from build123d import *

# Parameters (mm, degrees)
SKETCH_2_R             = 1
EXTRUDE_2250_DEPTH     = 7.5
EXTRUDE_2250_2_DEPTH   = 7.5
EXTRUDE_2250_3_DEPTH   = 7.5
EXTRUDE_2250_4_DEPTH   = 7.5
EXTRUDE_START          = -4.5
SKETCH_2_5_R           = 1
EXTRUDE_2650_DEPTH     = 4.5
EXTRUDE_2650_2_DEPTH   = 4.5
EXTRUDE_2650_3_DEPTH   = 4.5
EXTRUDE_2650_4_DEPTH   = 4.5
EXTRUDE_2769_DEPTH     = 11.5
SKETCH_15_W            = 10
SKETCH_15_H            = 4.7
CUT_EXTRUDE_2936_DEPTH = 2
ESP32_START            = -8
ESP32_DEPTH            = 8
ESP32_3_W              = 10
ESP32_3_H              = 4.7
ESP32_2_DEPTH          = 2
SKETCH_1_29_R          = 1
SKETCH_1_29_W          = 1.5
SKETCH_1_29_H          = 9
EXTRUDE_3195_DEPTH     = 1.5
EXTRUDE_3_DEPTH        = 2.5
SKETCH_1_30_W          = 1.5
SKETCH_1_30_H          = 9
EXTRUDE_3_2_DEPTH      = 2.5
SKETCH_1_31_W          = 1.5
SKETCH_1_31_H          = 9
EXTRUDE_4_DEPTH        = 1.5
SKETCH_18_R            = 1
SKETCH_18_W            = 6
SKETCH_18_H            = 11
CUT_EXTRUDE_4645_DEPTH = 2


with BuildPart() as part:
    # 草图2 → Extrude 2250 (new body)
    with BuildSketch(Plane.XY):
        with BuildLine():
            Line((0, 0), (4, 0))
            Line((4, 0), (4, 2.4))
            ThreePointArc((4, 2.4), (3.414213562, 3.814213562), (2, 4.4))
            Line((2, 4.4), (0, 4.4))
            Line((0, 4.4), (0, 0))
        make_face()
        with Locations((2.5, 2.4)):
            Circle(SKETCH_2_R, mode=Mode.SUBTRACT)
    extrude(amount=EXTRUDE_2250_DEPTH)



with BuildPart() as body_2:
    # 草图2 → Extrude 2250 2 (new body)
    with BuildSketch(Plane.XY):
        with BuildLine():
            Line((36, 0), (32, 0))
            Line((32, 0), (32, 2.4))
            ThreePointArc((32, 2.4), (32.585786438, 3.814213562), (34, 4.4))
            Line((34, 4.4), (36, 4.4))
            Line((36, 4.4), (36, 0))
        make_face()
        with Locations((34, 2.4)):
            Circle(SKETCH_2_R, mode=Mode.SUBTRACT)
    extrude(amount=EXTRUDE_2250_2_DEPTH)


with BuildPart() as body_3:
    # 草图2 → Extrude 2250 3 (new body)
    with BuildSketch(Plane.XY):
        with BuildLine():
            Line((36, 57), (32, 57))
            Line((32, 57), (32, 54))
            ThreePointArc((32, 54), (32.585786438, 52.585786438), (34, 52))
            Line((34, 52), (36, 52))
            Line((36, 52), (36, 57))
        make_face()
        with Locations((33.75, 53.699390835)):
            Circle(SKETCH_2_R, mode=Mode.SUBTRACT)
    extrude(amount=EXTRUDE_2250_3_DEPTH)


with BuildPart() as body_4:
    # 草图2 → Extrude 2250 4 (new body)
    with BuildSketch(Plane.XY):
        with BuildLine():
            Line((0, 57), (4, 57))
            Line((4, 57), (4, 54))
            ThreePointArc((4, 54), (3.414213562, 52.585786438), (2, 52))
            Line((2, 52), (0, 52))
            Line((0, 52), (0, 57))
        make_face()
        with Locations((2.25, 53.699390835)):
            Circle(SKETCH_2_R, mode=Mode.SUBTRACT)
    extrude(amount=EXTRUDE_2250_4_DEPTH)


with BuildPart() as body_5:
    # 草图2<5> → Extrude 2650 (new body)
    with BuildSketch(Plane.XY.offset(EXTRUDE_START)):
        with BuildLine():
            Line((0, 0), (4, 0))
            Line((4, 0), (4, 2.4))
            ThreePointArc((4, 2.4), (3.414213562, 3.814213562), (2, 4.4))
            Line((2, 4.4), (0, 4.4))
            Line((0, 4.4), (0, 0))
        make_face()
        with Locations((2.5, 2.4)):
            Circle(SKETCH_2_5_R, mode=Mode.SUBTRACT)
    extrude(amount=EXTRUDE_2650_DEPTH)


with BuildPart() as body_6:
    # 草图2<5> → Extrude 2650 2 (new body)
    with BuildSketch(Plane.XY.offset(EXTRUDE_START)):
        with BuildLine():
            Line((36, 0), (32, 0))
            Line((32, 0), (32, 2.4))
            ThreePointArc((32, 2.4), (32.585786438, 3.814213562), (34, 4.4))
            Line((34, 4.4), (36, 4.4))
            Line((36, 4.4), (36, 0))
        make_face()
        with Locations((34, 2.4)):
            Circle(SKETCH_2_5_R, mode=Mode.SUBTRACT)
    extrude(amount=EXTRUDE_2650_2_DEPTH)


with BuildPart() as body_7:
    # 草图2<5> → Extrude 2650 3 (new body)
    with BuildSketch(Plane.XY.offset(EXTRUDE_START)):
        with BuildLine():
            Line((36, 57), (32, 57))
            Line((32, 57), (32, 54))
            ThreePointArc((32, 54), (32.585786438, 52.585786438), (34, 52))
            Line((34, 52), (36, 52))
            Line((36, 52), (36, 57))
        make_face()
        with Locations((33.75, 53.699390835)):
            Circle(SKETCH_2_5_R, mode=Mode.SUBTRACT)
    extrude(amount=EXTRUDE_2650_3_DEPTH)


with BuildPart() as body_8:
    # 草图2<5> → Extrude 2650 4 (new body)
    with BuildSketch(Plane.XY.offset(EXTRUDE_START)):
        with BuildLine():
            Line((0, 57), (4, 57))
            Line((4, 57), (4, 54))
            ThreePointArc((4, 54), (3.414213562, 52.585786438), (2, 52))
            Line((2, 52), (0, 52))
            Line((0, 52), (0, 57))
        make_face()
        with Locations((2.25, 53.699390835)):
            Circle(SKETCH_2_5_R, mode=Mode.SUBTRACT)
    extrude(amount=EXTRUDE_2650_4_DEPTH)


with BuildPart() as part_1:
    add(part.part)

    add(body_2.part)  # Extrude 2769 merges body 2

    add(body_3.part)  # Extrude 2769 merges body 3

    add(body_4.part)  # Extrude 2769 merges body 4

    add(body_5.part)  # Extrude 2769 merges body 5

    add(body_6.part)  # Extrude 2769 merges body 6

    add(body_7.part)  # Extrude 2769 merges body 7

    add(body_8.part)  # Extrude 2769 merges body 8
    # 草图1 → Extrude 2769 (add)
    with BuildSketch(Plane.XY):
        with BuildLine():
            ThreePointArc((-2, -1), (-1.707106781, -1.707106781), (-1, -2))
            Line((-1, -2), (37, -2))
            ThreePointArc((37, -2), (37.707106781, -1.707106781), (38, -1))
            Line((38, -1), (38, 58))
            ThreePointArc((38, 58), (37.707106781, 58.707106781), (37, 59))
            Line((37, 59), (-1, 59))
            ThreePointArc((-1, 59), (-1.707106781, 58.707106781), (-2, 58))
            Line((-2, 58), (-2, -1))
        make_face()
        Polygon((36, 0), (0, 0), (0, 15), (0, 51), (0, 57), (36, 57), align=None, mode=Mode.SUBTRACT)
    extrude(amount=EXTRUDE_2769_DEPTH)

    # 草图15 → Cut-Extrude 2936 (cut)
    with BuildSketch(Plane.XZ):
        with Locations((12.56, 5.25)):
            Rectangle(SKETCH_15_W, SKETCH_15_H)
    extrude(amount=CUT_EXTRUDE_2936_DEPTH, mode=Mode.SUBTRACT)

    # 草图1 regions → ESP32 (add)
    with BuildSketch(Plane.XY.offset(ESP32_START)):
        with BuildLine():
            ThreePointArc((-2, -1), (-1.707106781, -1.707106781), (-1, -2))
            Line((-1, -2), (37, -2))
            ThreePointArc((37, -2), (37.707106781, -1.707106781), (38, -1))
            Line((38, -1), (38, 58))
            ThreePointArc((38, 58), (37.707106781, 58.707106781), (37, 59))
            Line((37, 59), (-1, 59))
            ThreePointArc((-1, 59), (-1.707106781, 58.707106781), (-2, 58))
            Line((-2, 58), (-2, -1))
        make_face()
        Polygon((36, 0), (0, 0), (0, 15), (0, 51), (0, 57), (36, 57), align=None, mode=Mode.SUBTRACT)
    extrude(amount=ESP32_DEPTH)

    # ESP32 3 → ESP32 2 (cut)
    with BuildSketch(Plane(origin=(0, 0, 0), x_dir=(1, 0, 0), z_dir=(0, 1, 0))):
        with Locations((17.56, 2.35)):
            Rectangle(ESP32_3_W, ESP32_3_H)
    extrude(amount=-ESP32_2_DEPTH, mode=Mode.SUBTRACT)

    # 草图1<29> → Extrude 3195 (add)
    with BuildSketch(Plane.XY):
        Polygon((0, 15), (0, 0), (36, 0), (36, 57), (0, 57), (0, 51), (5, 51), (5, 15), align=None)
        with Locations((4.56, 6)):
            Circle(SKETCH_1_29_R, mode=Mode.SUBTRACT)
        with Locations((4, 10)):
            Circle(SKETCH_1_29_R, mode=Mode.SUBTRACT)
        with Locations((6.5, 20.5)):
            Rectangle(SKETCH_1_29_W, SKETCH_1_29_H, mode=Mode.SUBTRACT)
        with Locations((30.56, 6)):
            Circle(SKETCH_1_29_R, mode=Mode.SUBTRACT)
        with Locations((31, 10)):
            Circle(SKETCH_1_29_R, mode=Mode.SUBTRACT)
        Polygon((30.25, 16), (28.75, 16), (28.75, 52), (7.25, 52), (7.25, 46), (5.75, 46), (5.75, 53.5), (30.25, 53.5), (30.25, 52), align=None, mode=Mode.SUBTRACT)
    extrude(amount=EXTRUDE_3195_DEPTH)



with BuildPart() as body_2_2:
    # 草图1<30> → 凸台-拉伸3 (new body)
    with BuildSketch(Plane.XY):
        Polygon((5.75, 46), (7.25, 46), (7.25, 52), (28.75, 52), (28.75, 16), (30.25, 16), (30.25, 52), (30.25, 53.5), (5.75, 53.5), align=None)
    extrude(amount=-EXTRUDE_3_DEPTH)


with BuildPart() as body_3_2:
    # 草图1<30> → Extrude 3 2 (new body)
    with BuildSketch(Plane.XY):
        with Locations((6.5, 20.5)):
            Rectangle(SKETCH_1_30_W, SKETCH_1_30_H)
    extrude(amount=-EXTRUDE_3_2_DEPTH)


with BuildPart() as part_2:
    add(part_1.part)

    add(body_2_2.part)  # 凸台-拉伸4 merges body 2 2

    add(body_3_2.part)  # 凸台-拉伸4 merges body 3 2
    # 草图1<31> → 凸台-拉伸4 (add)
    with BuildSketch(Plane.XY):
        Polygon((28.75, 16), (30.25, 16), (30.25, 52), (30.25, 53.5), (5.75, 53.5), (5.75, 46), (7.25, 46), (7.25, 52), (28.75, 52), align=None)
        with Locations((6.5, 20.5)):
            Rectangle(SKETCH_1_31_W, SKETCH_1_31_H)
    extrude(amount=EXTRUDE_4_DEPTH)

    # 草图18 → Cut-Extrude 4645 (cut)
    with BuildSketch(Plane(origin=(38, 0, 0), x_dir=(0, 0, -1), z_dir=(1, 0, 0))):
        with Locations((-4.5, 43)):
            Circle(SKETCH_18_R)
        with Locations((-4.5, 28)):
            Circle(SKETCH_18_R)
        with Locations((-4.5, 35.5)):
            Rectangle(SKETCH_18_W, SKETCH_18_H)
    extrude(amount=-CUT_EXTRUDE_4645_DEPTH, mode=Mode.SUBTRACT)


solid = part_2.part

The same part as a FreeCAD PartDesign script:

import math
import FreeCAD as App
import Part
import Sketcher
Q = App.Units.Quantity


def add_polygon(sketch, points):
    """Adds a closed chain of lines whose ends are joined by coincident constraints."""
    first, n = sketch.GeometryCount, len(points)
    for a, b in zip(points, points[1:] + points[:1]):
        sketch.addGeometry(Part.LineSegment(App.Vector(*a, 0), App.Vector(*b, 0)), False)
    for i in range(n):
        sketch.addConstraint(Sketcher.Constraint("Coincident", first + i, 2, first + (i + 1) % n, 1))

doc = App.newDocument("Part")
params = doc.addObject("Spreadsheet::Sheet", "Params")
for row, (alias, value) in enumerate([
    ("sketch1_diameter", "2 mm"),
    ("sketch1_radius", "2 mm"),
    ("sketch1_width", "4 mm"),
    ("sketch1_height", "2.4 mm"),
    ("pad1_length", "7.5 mm"),
    ("sketch2_diameter", "2 mm"),
    ("sketch2_radius", "2 mm"),
    ("sketch2_width", "4 mm"),
    ("sketch2_height", "4.4 mm"),
    ("pad2_length", "7.5 mm"),
    ("sketch3_diameter", "2 mm"),
    ("sketch3_radius", "2 mm"),
    ("sketch3_width", "4 mm"),
    ("sketch3_height", "3 mm"),
    ("pad3_length", "7.5 mm"),
    ("sketch4_diameter", "2 mm"),
    ("sketch4_radius", "2 mm"),
    ("sketch4_width", "4 mm"),
    ("sketch4_height", "5 mm"),
    ("pad4_length", "7.5 mm"),
    ("sketch5_diameter", "2 mm"),
    ("sketch5_radius", "2 mm"),
    ("sketch5_width", "4 mm"),
    ("sketch5_height", "2.4 mm"),
    ("pad5_length", "4.5 mm"),
    ("sketch6_diameter", "2 mm"),
    ("sketch6_radius", "2 mm"),
    ("sketch6_width", "4 mm"),
    ("sketch6_height", "4.4 mm"),
    ("pad6_length", "4.5 mm"),
    ("sketch7_diameter", "2 mm"),
    ("sketch7_radius", "2 mm"),
    ("sketch7_width", "4 mm"),
    ("sketch7_height", "3 mm"),
    ("pad7_length", "4.5 mm"),
    ("sketch8_diameter", "2 mm"),
    ("sketch8_radius", "2 mm"),
    ("sketch8_width", "4 mm"),
    ("sketch8_height", "5 mm"),
    ("pad8_length", "4.5 mm"),
    ("sketch9_radius", "1 mm"),
    ("sketch9_width", "38 mm"),
    ("sketch9_width2", "36 mm"),
    ("sketch9_height", "59 mm"),
    ("sketch9_height2", "57 mm"),
    ("pad9_length", "11.5 mm"),
    ("sketch10_width", "10 mm"),
    ("sketch10_height", "4.7 mm"),
    ("pocket1_length", "2 mm"),
    ("sketch11_radius", "1 mm"),
    ("sketch11_width", "38 mm"),
    ("sketch11_width2", "36 mm"),
    ("sketch11_height", "59 mm"),
    ("sketch11_height2", "57 mm"),
    ("pad10_length", "8 mm"),
    ("sketch12_width", "10 mm"),
    ("sketch12_height", "4.7 mm"),
    ("pocket2_length", "2 mm"),
    ("sketch13_diameter", "2 mm"),
    ("sketch13_width", "36 mm"),
    ("sketch13_width2", "5 mm"),
    ("sketch13_height", "15 mm"),
    ("sketch13_height2", "57 mm"),
    ("pad11_length", "1.5 mm"),
    ("sketch14_height", "6 mm"),
    ("sketch14_height2", "36 mm"),
    ("sketch14_width", "1.5 mm"),
    ("sketch14_width2", "21.5 mm"),
    ("sketch14_height3", "37.5 mm"),
    ("pad12_length", "2.5 mm"),
    ("sketch15_height", "9 mm"),
    ("sketch15_width", "1.5 mm"),
    ("pad13_length", "2.5 mm"),
    ("sketch16_height", "6 mm"),
    ("sketch16_height2", "36 mm"),
    ("sketch16_height3", "9 mm"),
    ("sketch16_width", "1.5 mm"),
    ("sketch16_width2", "24.5 mm"),
    ("pad14_length", "1.5 mm"),
    ("sketch17_diameter", "2 mm"),
    ("sketch17_width", "11 mm"),
    ("sketch17_height", "6 mm"),
    ("pocket3_length", "2 mm"),
], start=1):
    params.set(f"A{row}", alias)
    params.set(f"B{row}", "=" + value)
    params.setAlias(f"B{row}", alias)

body = doc.addObject("PartDesign::Body", "Body")

sketch1 = body.newObject("Sketcher::SketchObject", "Sketch")
sketch1.AttachmentSupport = (doc.getObject("XY_Plane"), [""])
sketch1.MapMode = "FlatFace"
sketch1.addGeometry([
    Part.LineSegment(App.Vector(0, 0, 0), App.Vector(4, 0, 0)),
    Part.LineSegment(App.Vector(4, 0, 0), App.Vector(4, 2.4, 0)),
    Part.ArcOfCircle(Part.Circle(App.Vector(2, 2.4, 0), App.Vector(0, 0, 1), 2), math.radians(0), math.radians(90)),
    Part.LineSegment(App.Vector(2, 4.4, 0), App.Vector(0, 4.4, 0)),
    Part.LineSegment(App.Vector(0, 4.4, 0), App.Vector(0, 0, 0)),
    Part.Circle(App.Vector(2.5, 2.4, 0), App.Vector(0, 0, 1), 1),
], False)
sketch1.addConstraint([
    Sketcher.Constraint("Coincident", 0, 2, 1, 1),
    Sketcher.Constraint("Tangent", 1, 2, 2, 1),
    Sketcher.Constraint("Tangent", 2, 2, 3, 1),
    Sketcher.Constraint("Coincident", 3, 2, 4, 1),
    Sketcher.Constraint("Coincident", 4, 2, 0, 1),
    Sketcher.Constraint("Horizontal", 0),
    Sketcher.Constraint("Vertical", 1),
    Sketcher.Constraint("Horizontal", 3),
    Sketcher.Constraint("Vertical", 4),
    Sketcher.Constraint("Coincident", 4, 2, -1, 1),
    Sketcher.Constraint("Horizontal", 2, 3, 5, 3),
    Sketcher.Constraint("Diameter", 5, Q("2 mm")),
    Sketcher.Constraint("Radius", 2, Q("2 mm")),
    Sketcher.Constraint("DistanceX", 0, 1, 0, 2, Q("4 mm")),
    Sketcher.Constraint("DistanceY", 1, 1, 1, 2, Q("2.4 mm")),
    Sketcher.Constraint("DistanceX", -1, 1, 5, 3, Q("2.5 mm")),
])
sketch1.setExpression("Constraints[11]", "Params.sketch1_diameter")
sketch1.setExpression("Constraints[12]", "Params.sketch1_radius")
sketch1.setExpression("Constraints[13]", "Params.sketch1_width")
sketch1.setExpression("Constraints[14]", "Params.sketch1_height")
pad1 = body.newObject("PartDesign::Pad", "Pad")
pad1.Profile = sketch1
pad1.setExpression("Length", "Params.pad1_length")
body2 = doc.addObject("PartDesign::Body", "Body001")

sketch2 = body2.newObject("Sketcher::SketchObject", "Sketch001")
sketch2.AttachmentSupport = (doc.getObject("XY_Plane001"), [""])
sketch2.MapMode = "FlatFace"
sketch2.addGeometry([
    Part.LineSegment(App.Vector(32, 0, 0), App.Vector(36, 0, 0)),
    Part.LineSegment(App.Vector(36, 0, 0), App.Vector(36, 4.4, 0)),
    Part.LineSegment(App.Vector(36, 4.4, 0), App.Vector(34, 4.4, 0)),
    Part.ArcOfCircle(Part.Circle(App.Vector(34, 2.4, 0), App.Vector(0, 0, 1), 2), math.radians(90), math.radians(180)),
    Part.LineSegment(App.Vector(32, 2.4, 0), App.Vector(32, 0, 0)),
    Part.Circle(App.Vector(34, 2.4, 0), App.Vector(0, 0, 1), 1),
], False)
sketch2.addConstraint([
    Sketcher.Constraint("Coincident", 0, 2, 1, 1),
    Sketcher.Constraint("Coincident", 1, 2, 2, 1),
    Sketcher.Constraint("Tangent", 2, 2, 3, 1),
    Sketcher.Constraint("Tangent", 3, 2, 4, 1),
    Sketcher.Constraint("Coincident", 4, 2, 0, 1),
    Sketcher.Constraint("Horizontal", 0),
    Sketcher.Constraint("Vertical", 1),
    Sketcher.Constraint("Horizontal", 2),
    Sketcher.Constraint("Vertical", 4),
    Sketcher.Constraint("Coincident", 5, 3, 3, 3),
    Sketcher.Constraint("PointOnObject", 0, 2, -1),
    Sketcher.Constraint("Diameter", 5, Q("2 mm")),
    Sketcher.Constraint("Radius", 3, Q("2 mm")),
    Sketcher.Constraint("DistanceX", 0, 1, 0, 2, Q("4 mm")),
    Sketcher.Constraint("DistanceY", 1, 1, 1, 2, Q("4.4 mm")),
    Sketcher.Constraint("DistanceX", -1, 1, 3, 3, Q("34 mm")),
])
sketch2.setExpression("Constraints[11]", "Params.sketch2_diameter")
sketch2.setExpression("Constraints[12]", "Params.sketch2_radius")
sketch2.setExpression("Constraints[13]", "Params.sketch2_width")
sketch2.setExpression("Constraints[14]", "Params.sketch2_height")
pad2 = body2.newObject("PartDesign::Pad", "Pad001")
pad2.Profile = sketch2
pad2.setExpression("Length", "Params.pad2_length")
body3 = doc.addObject("PartDesign::Body", "Body002")

sketch3 = body3.newObject("Sketcher::SketchObject", "Sketch002")
sketch3.AttachmentSupport = (doc.getObject("XY_Plane002"), [""])
sketch3.MapMode = "FlatFace"
sketch3.addGeometry([
    Part.LineSegment(App.Vector(36, 57, 0), App.Vector(32, 57, 0)),
    Part.LineSegment(App.Vector(32, 57, 0), App.Vector(32, 54, 0)),
    Part.ArcOfCircle(Part.Circle(App.Vector(34, 54, 0), App.Vector(0, 0, 1), 2), math.radians(-180), math.radians(-90)),
    Part.LineSegment(App.Vector(34, 52, 0), App.Vector(36, 52, 0)),
    Part.LineSegment(App.Vector(36, 52, 0), App.Vector(36, 57, 0)),
    Part.Circle(App.Vector(33.75, 53.699391, 0), App.Vector(0, 0, 1), 1),
], False)
sketch3.addConstraint([
    Sketcher.Constraint("Coincident", 0, 2, 1, 1),
    Sketcher.Constraint("Tangent", 1, 2, 2, 1),
    Sketcher.Constraint("Tangent", 2, 2, 3, 1),
    Sketcher.Constraint("Coincident", 3, 2, 4, 1),
    Sketcher.Constraint("Coincident", 4, 2, 0, 1),
    Sketcher.Constraint("Horizontal", 0),
    Sketcher.Constraint("Vertical", 1),
    Sketcher.Constraint("Horizontal", 3),
    Sketcher.Constraint("Vertical", 4),
    Sketcher.Constraint("Diameter", 5, Q("2 mm")),
    Sketcher.Constraint("Radius", 2, Q("2 mm")),
    Sketcher.Constraint("DistanceX", 0, 2, 0, 1, Q("4 mm")),
    Sketcher.Constraint("DistanceY", 1, 2, 1, 1, Q("3 mm")),
    Sketcher.Constraint("DistanceX", -1, 1, 2, 3, Q("34 mm")),
    Sketcher.Constraint("DistanceY", -1, 1, 2, 3, Q("54 mm")),
    Sketcher.Constraint("DistanceX", -1, 1, 5, 3, Q("33.75 mm")),
    Sketcher.Constraint("DistanceY", -1, 1, 5, 3, Q("53.699391 mm")),
])
sketch3.setExpression("Constraints[9]", "Params.sketch3_diameter")
sketch3.setExpression("Constraints[10]", "Params.sketch3_radius")
sketch3.setExpression("Constraints[11]", "Params.sketch3_width")
sketch3.setExpression("Constraints[12]", "Params.sketch3_height")
pad3 = body3.newObject("PartDesign::Pad", "Pad002")
pad3.Profile = sketch3
pad3.setExpression("Length", "Params.pad3_length")
body4 = doc.addObject("PartDesign::Body", "Body003")

sketch4 = body4.newObject("Sketcher::SketchObject", "Sketch003")
sketch4.AttachmentSupport = (doc.getObject("XY_Plane003"), [""])
sketch4.MapMode = "FlatFace"
sketch4.addGeometry([
    Part.LineSegment(App.Vector(4, 57, 0), App.Vector(0, 57, 0)),
    Part.LineSegment(App.Vector(0, 57, 0), App.Vector(0, 52, 0)),
    Part.LineSegment(App.Vector(0, 52, 0), App.Vector(2, 52, 0)),
    Part.ArcOfCircle(Part.Circle(App.Vector(2, 54, 0), App.Vector(0, 0, 1), 2), math.radians(-90), math.radians(0)),
    Part.LineSegment(App.Vector(4, 54, 0), App.Vector(4, 57, 0)),
    Part.Circle(App.Vector(2.25, 53.699391, 0), App.Vector(0, 0, 1), 1),
], False)
sketch4.addConstraint([
    Sketcher.Constraint("Coincident", 0, 2, 1, 1),
    Sketcher.Constraint("Coincident", 1, 2, 2, 1),
    Sketcher.Constraint("Tangent", 2, 2, 3, 1),
    Sketcher.Constraint("Tangent", 3, 2, 4, 1),
    Sketcher.Constraint("Coincident", 4, 2, 0, 1),
    Sketcher.Constraint("Horizontal", 0),
    Sketcher.Constraint("Vertical", 1),
    Sketcher.Constraint("Horizontal", 2),
    Sketcher.Constraint("Vertical", 4),
    Sketcher.Constraint("PointOnObject", 0, 2, -2),
    Sketcher.Constraint("Diameter", 5, Q("2 mm")),
    Sketcher.Constraint("Radius", 3, Q("2 mm")),
    Sketcher.Constraint("DistanceX", 0, 2, 0, 1, Q("4 mm")),
    Sketcher.Constraint("DistanceY", 1, 2, 1, 1, Q("5 mm")),
    Sketcher.Constraint("DistanceY", -1, 1, 3, 3, Q("54 mm")),
    Sketcher.Constraint("DistanceX", -1, 1, 5, 3, Q("2.25 mm")),
    Sketcher.Constraint("DistanceY", -1, 1, 5, 3, Q("53.699391 mm")),
])
sketch4.setExpression("Constraints[10]", "Params.sketch4_diameter")
sketch4.setExpression("Constraints[11]", "Params.sketch4_radius")
sketch4.setExpression("Constraints[12]", "Params.sketch4_width")
sketch4.setExpression("Constraints[13]", "Params.sketch4_height")
pad4 = body4.newObject("PartDesign::Pad", "Pad003")
pad4.Profile = sketch4
pad4.setExpression("Length", "Params.pad4_length")
body5 = doc.addObject("PartDesign::Body", "Body004")

sketch5 = body5.newObject("Sketcher::SketchObject", "Sketch004")
sketch5.AttachmentSupport = (doc.getObject("XY_Plane004"), [""])
sketch5.MapMode = "FlatFace"
sketch5.AttachmentOffset = App.Placement(App.Vector(0, 0, -4.5), App.Rotation())
sketch5.addGeometry([
    Part.LineSegment(App.Vector(0, 0, 0), App.Vector(4, 0, 0)),
    Part.LineSegment(App.Vector(4, 0, 0), App.Vector(4, 2.4, 0)),
    Part.ArcOfCircle(Part.Circle(App.Vector(2, 2.4, 0), App.Vector(0, 0, 1), 2), math.radians(0), math.radians(90)),
    Part.LineSegment(App.Vector(2, 4.4, 0), App.Vector(0, 4.4, 0)),
    Part.LineSegment(App.Vector(0, 4.4, 0), App.Vector(0, 0, 0)),
    Part.Circle(App.Vector(2.5, 2.4, 0), App.Vector(0, 0, 1), 1),
], False)
sketch5.addConstraint([
    Sketcher.Constraint("Coincident", 0, 2, 1, 1),
    Sketcher.Constraint("Tangent", 1, 2, 2, 1),
    Sketcher.Constraint("Tangent", 2, 2, 3, 1),
    Sketcher.Constraint("Coincident", 3, 2, 4, 1),
    Sketcher.Constraint("Coincident", 4, 2, 0, 1),
    Sketcher.Constraint("Horizontal", 0),
    Sketcher.Constraint("Vertical", 1),
    Sketcher.Constraint("Horizontal", 3),
    Sketcher.Constraint("Vertical", 4),
    Sketcher.Constraint("Coincident", 4, 2, -1, 1),
    Sketcher.Constraint("Horizontal", 2, 3, 5, 3),
    Sketcher.Constraint("Diameter", 5, Q("2 mm")),
    Sketcher.Constraint("Radius", 2, Q("2 mm")),
    Sketcher.Constraint("DistanceX", 0, 1, 0, 2, Q("4 mm")),
    Sketcher.Constraint("DistanceY", 1, 1, 1, 2, Q("2.4 mm")),
    Sketcher.Constraint("DistanceX", -1, 1, 5, 3, Q("2.5 mm")),
])
sketch5.setExpression("Constraints[11]", "Params.sketch5_diameter")
sketch5.setExpression("Constraints[12]", "Params.sketch5_radius")
sketch5.setExpression("Constraints[13]", "Params.sketch5_width")
sketch5.setExpression("Constraints[14]", "Params.sketch5_height")
pad5 = body5.newObject("PartDesign::Pad", "Pad004")
pad5.Profile = sketch5
pad5.setExpression("Length", "Params.pad5_length")
body6 = doc.addObject("PartDesign::Body", "Body005")

sketch6 = body6.newObject("Sketcher::SketchObject", "Sketch005")
sketch6.AttachmentSupport = (doc.getObject("XY_Plane005"), [""])
sketch6.MapMode = "FlatFace"
sketch6.AttachmentOffset = App.Placement(App.Vector(0, 0, -4.5), App.Rotation())
sketch6.addGeometry([
    Part.LineSegment(App.Vector(32, 0, 0), App.Vector(36, 0, 0)),
    Part.LineSegment(App.Vector(36, 0, 0), App.Vector(36, 4.4, 0)),
    Part.LineSegment(App.Vector(36, 4.4, 0), App.Vector(34, 4.4, 0)),
    Part.ArcOfCircle(Part.Circle(App.Vector(34, 2.4, 0), App.Vector(0, 0, 1), 2), math.radians(90), math.radians(180)),
    Part.LineSegment(App.Vector(32, 2.4, 0), App.Vector(32, 0, 0)),
    Part.Circle(App.Vector(34, 2.4, 0), App.Vector(0, 0, 1), 1),
], False)
sketch6.addConstraint([
    Sketcher.Constraint("Coincident", 0, 2, 1, 1),
    Sketcher.Constraint("Coincident", 1, 2, 2, 1),
    Sketcher.Constraint("Tangent", 2, 2, 3, 1),
    Sketcher.Constraint("Tangent", 3, 2, 4, 1),
    Sketcher.Constraint("Coincident", 4, 2, 0, 1),
    Sketcher.Constraint("Horizontal", 0),
    Sketcher.Constraint("Vertical", 1),
    Sketcher.Constraint("Horizontal", 2),
    Sketcher.Constraint("Vertical", 4),
    Sketcher.Constraint("Coincident", 5, 3, 3, 3),
    Sketcher.Constraint("PointOnObject", 0, 2, -1),
    Sketcher.Constraint("Diameter", 5, Q("2 mm")),
    Sketcher.Constraint("Radius", 3, Q("2 mm")),
    Sketcher.Constraint("DistanceX", 0, 1, 0, 2, Q("4 mm")),
    Sketcher.Constraint("DistanceY", 1, 1, 1, 2, Q("4.4 mm")),
    Sketcher.Constraint("DistanceX", -1, 1, 3, 3, Q("34 mm")),
])
sketch6.setExpression("Constraints[11]", "Params.sketch6_diameter")
sketch6.setExpression("Constraints[12]", "Params.sketch6_radius")
sketch6.setExpression("Constraints[13]", "Params.sketch6_width")
sketch6.setExpression("Constraints[14]", "Params.sketch6_height")
pad6 = body6.newObject("PartDesign::Pad", "Pad005")
pad6.Profile = sketch6
pad6.setExpression("Length", "Params.pad6_length")
body7 = doc.addObject("PartDesign::Body", "Body006")

sketch7 = body7.newObject("Sketcher::SketchObject", "Sketch006")
sketch7.AttachmentSupport = (doc.getObject("XY_Plane006"), [""])
sketch7.MapMode = "FlatFace"
sketch7.AttachmentOffset = App.Placement(App.Vector(0, 0, -4.5), App.Rotation())
sketch7.addGeometry([
    Part.LineSegment(App.Vector(36, 57, 0), App.Vector(32, 57, 0)),
    Part.LineSegment(App.Vector(32, 57, 0), App.Vector(32, 54, 0)),
    Part.ArcOfCircle(Part.Circle(App.Vector(34, 54, 0), App.Vector(0, 0, 1), 2), math.radians(-180), math.radians(-90)),
    Part.LineSegment(App.Vector(34, 52, 0), App.Vector(36, 52, 0)),
    Part.LineSegment(App.Vector(36, 52, 0), App.Vector(36, 57, 0)),
    Part.Circle(App.Vector(33.75, 53.699391, 0), App.Vector(0, 0, 1), 1),
], False)
sketch7.addConstraint([
    Sketcher.Constraint("Coincident", 0, 2, 1, 1),
    Sketcher.Constraint("Tangent", 1, 2, 2, 1),
    Sketcher.Constraint("Tangent", 2, 2, 3, 1),
    Sketcher.Constraint("Coincident", 3, 2, 4, 1),
    Sketcher.Constraint("Coincident", 4, 2, 0, 1),
    Sketcher.Constraint("Horizontal", 0),
    Sketcher.Constraint("Vertical", 1),
    Sketcher.Constraint("Horizontal", 3),
    Sketcher.Constraint("Vertical", 4),
    Sketcher.Constraint("Diameter", 5, Q("2 mm")),
    Sketcher.Constraint("Radius", 2, Q("2 mm")),
    Sketcher.Constraint("DistanceX", 0, 2, 0, 1, Q("4 mm")),
    Sketcher.Constraint("DistanceY", 1, 2, 1, 1, Q("3 mm")),
    Sketcher.Constraint("DistanceX", -1, 1, 2, 3, Q("34 mm")),
    Sketcher.Constraint("DistanceY", -1, 1, 2, 3, Q("54 mm")),
    Sketcher.Constraint("DistanceX", -1, 1, 5, 3, Q("33.75 mm")),
    Sketcher.Constraint("DistanceY", -1, 1, 5, 3, Q("53.699391 mm")),
])
sketch7.setExpression("Constraints[9]", "Params.sketch7_diameter")
sketch7.setExpression("Constraints[10]", "Params.sketch7_radius")
sketch7.setExpression("Constraints[11]", "Params.sketch7_width")
sketch7.setExpression("Constraints[12]", "Params.sketch7_height")
pad7 = body7.newObject("PartDesign::Pad", "Pad006")
pad7.Profile = sketch7
pad7.setExpression("Length", "Params.pad7_length")
body8 = doc.addObject("PartDesign::Body", "Body007")

sketch8 = body8.newObject("Sketcher::SketchObject", "Sketch007")
sketch8.AttachmentSupport = (doc.getObject("XY_Plane007"), [""])
sketch8.MapMode = "FlatFace"
sketch8.AttachmentOffset = App.Placement(App.Vector(0, 0, -4.5), App.Rotation())
sketch8.addGeometry([
    Part.LineSegment(App.Vector(4, 57, 0), App.Vector(0, 57, 0)),
    Part.LineSegment(App.Vector(0, 57, 0), App.Vector(0, 52, 0)),
    Part.LineSegment(App.Vector(0, 52, 0), App.Vector(2, 52, 0)),
    Part.ArcOfCircle(Part.Circle(App.Vector(2, 54, 0), App.Vector(0, 0, 1), 2), math.radians(-90), math.radians(0)),
    Part.LineSegment(App.Vector(4, 54, 0), App.Vector(4, 57, 0)),
    Part.Circle(App.Vector(2.25, 53.699391, 0), App.Vector(0, 0, 1), 1),
], False)
sketch8.addConstraint([
    Sketcher.Constraint("Coincident", 0, 2, 1, 1),
    Sketcher.Constraint("Coincident", 1, 2, 2, 1),
    Sketcher.Constraint("Tangent", 2, 2, 3, 1),
    Sketcher.Constraint("Tangent", 3, 2, 4, 1),
    Sketcher.Constraint("Coincident", 4, 2, 0, 1),
    Sketcher.Constraint("Horizontal", 0),
    Sketcher.Constraint("Vertical", 1),
    Sketcher.Constraint("Horizontal", 2),
    Sketcher.Constraint("Vertical", 4),
    Sketcher.Constraint("PointOnObject", 0, 2, -2),
    Sketcher.Constraint("Diameter", 5, Q("2 mm")),
    Sketcher.Constraint("Radius", 3, Q("2 mm")),
    Sketcher.Constraint("DistanceX", 0, 2, 0, 1, Q("4 mm")),
    Sketcher.Constraint("DistanceY", 1, 2, 1, 1, Q("5 mm")),
    Sketcher.Constraint("DistanceY", -1, 1, 3, 3, Q("54 mm")),
    Sketcher.Constraint("DistanceX", -1, 1, 5, 3, Q("2.25 mm")),
    Sketcher.Constraint("DistanceY", -1, 1, 5, 3, Q("53.699391 mm")),
])
sketch8.setExpression("Constraints[10]", "Params.sketch8_diameter")
sketch8.setExpression("Constraints[11]", "Params.sketch8_radius")
sketch8.setExpression("Constraints[12]", "Params.sketch8_width")
sketch8.setExpression("Constraints[13]", "Params.sketch8_height")
pad8 = body8.newObject("PartDesign::Pad", "Pad007")
pad8.Profile = sketch8
pad8.setExpression("Length", "Params.pad8_length")
body.AllowCompound = True
doc.recompute()

boolean = body.newObject("PartDesign::Boolean", "Boolean")
boolean.Type = "Fuse"
boolean.addObjects([body2])
doc.recompute()

boolean2 = body.newObject("PartDesign::Boolean", "Boolean001")
boolean2.Type = "Fuse"
boolean2.addObjects([body3])
doc.recompute()

boolean3 = body.newObject("PartDesign::Boolean", "Boolean002")
boolean3.Type = "Fuse"
boolean3.addObjects([body4])
doc.recompute()

boolean4 = body.newObject("PartDesign::Boolean", "Boolean003")
boolean4.Type = "Fuse"
boolean4.addObjects([body5])
doc.recompute()

boolean5 = body.newObject("PartDesign::Boolean", "Boolean004")
boolean5.Type = "Fuse"
boolean5.addObjects([body6])
doc.recompute()

boolean6 = body.newObject("PartDesign::Boolean", "Boolean005")
boolean6.Type = "Fuse"
boolean6.addObjects([body7])
doc.recompute()

boolean7 = body.newObject("PartDesign::Boolean", "Boolean006")
boolean7.Type = "Fuse"
boolean7.addObjects([body8])

sketch9 = body.newObject("Sketcher::SketchObject", "Sketch008")
sketch9.AttachmentSupport = (doc.getObject("XY_Plane"), [""])
sketch9.MapMode = "FlatFace"
sketch9.addGeometry(Part.ArcOfCircle(Part.Circle(App.Vector(-1, -1, 0), App.Vector(0, 0, 1), 1), math.radians(-180), math.radians(-90)), False)
sketch9.addGeometry(Part.LineSegment(App.Vector(-1, -2, 0), App.Vector(37, -2, 0)), False)
sketch9.addGeometry(Part.ArcOfCircle(Part.Circle(App.Vector(37, -1, 0), App.Vector(0, 0, 1), 1), math.radians(-90), math.radians(0)), False)
sketch9.addGeometry(Part.LineSegment(App.Vector(38, -1, 0), App.Vector(38, 58, 0)), False)
sketch9.addGeometry(Part.ArcOfCircle(Part.Circle(App.Vector(37, 58, 0), App.Vector(0, 0, 1), 1), math.radians(0), math.radians(90)), False)
sketch9.addGeometry(Part.LineSegment(App.Vector(37, 59, 0), App.Vector(-1, 59, 0)), False)
sketch9.addGeometry(Part.ArcOfCircle(Part.Circle(App.Vector(-1, 58, 0), App.Vector(0, 0, 1), 1), math.radians(90), math.radians(180)), False)
sketch9.addGeometry(Part.LineSegment(App.Vector(-2, 58, 0), App.Vector(-2, -1, 0)), False)
add_polygon(sketch9, [(36, 57), (36, 0), (0, 0), (0, 57)])
sketch9.addConstraint([
    Sketcher.Constraint("Tangent", 0, 2, 1, 1),
    Sketcher.Constraint("Tangent", 1, 2, 2, 1),
    Sketcher.Constraint("Tangent", 2, 2, 3, 1),
    Sketcher.Constraint("Tangent", 3, 2, 4, 1),
    Sketcher.Constraint("Tangent", 4, 2, 5, 1),
    Sketcher.Constraint("Tangent", 5, 2, 6, 1),
    Sketcher.Constraint("Tangent", 6, 2, 7, 1),
    Sketcher.Constraint("Tangent", 7, 2, 0, 1),
    Sketcher.Constraint("Horizontal", 1),
    Sketcher.Constraint("Vertical", 3),
    Sketcher.Constraint("Horizontal", 5),
    Sketcher.Constraint("Vertical", 7),
    Sketcher.Constraint("Vertical", 8),
    Sketcher.Constraint("Horizontal", 9),
    Sketcher.Constraint("Vertical", 10),
    Sketcher.Constraint("Horizontal", 11),
    Sketcher.Constraint("Coincident", 9, 2, -1, 1),
    Sketcher.Constraint("Equal", 0, 2),
    Sketcher.Constraint("Equal", 2, 4),
    Sketcher.Constraint("Equal", 4, 6),
    Sketcher.Constraint("Radius", 0, Q("1 mm")),
    Sketcher.Constraint("DistanceX", 1, 1, 1, 2, Q("38 mm")),
    Sketcher.Constraint("DistanceX", 9, 2, 9, 1, Q("36 mm")),
    Sketcher.Constraint("DistanceY", 3, 1, 3, 2, Q("59 mm")),
    Sketcher.Constraint("DistanceY", 8, 2, 8, 1, Q("57 mm")),
    Sketcher.Constraint("DistanceX", 0, 3, -1, 1, Q("1 mm")),
    Sketcher.Constraint("DistanceY", 0, 3, -1, 1, Q("1 mm")),
])
sketch9.setExpression("Constraints[24]", "Params.sketch9_radius")
sketch9.setExpression("Constraints[25]", "Params.sketch9_width")
sketch9.setExpression("Constraints[26]", "Params.sketch9_width2")
sketch9.setExpression("Constraints[27]", "Params.sketch9_height")
sketch9.setExpression("Constraints[28]", "Params.sketch9_height2")
pad9 = body.newObject("PartDesign::Pad", "Pad008")
pad9.Profile = sketch9
pad9.setExpression("Length", "Params.pad9_length")

sketch10 = body.newObject("Sketcher::SketchObject", "Sketch009")
sketch10.AttachmentSupport = (doc.getObject("XZ_Plane"), [""])
sketch10.MapMode = "FlatFace"
add_polygon(sketch10, [(7.56, 7.6), (7.56, 2.9), (17.56, 2.9), (17.56, 7.6)])
sketch10.addConstraint([
    Sketcher.Constraint("Vertical", 0),
    Sketcher.Constraint("Horizontal", 1),
    Sketcher.Constraint("Vertical", 2),
    Sketcher.Constraint("Horizontal", 3),
    Sketcher.Constraint("DistanceX", 1, 1, 1, 2, Q("10 mm")),
    Sketcher.Constraint("DistanceY", 0, 2, 0, 1, Q("4.7 mm")),
    Sketcher.Constraint("DistanceY", -1, 1, 0, 2, Q("2.9 mm")),
    Sketcher.Constraint("DistanceX", -1, 1, 0, 2, Q("7.56 mm")),
])
sketch10.setExpression("Constraints[8]", "Params.sketch10_width")
sketch10.setExpression("Constraints[9]", "Params.sketch10_height")
pocket1 = body.newObject("PartDesign::Pocket", "Pocket")
pocket1.Profile = sketch10
pocket1.setExpression("Length", "Params.pocket1_length")
pocket1.Reversed = True

sketch11 = body.newObject("Sketcher::SketchObject", "Sketch010")
sketch11.AttachmentSupport = (doc.getObject("XY_Plane"), [""])
sketch11.MapMode = "FlatFace"
sketch11.AttachmentOffset = App.Placement(App.Vector(0, 0, -8), App.Rotation())
sketch11.addGeometry(Part.ArcOfCircle(Part.Circle(App.Vector(-1, -1, 0), App.Vector(0, 0, 1), 1), math.radians(-180), math.radians(-90)), False)
sketch11.addGeometry(Part.LineSegment(App.Vector(-1, -2, 0), App.Vector(37, -2, 0)), False)
sketch11.addGeometry(Part.ArcOfCircle(Part.Circle(App.Vector(37, -1, 0), App.Vector(0, 0, 1), 1), math.radians(-90), math.radians(0)), False)
sketch11.addGeometry(Part.LineSegment(App.Vector(38, -1, 0), App.Vector(38, 58, 0)), False)
sketch11.addGeometry(Part.ArcOfCircle(Part.Circle(App.Vector(37, 58, 0), App.Vector(0, 0, 1), 1), math.radians(0), math.radians(90)), False)
sketch11.addGeometry(Part.LineSegment(App.Vector(37, 59, 0), App.Vector(-1, 59, 0)), False)
sketch11.addGeometry(Part.ArcOfCircle(Part.Circle(App.Vector(-1, 58, 0), App.Vector(0, 0, 1), 1), math.radians(90), math.radians(180)), False)
sketch11.addGeometry(Part.LineSegment(App.Vector(-2, 58, 0), App.Vector(-2, -1, 0)), False)
add_polygon(sketch11, [(36, 57), (36, 0), (0, 0), (0, 57)])
sketch11.addConstraint([
    Sketcher.Constraint("Tangent", 0, 2, 1, 1),
    Sketcher.Constraint("Tangent", 1, 2, 2, 1),
    Sketcher.Constraint("Tangent", 2, 2, 3, 1),
    Sketcher.Constraint("Tangent", 3, 2, 4, 1),
    Sketcher.Constraint("Tangent", 4, 2, 5, 1),
    Sketcher.Constraint("Tangent", 5, 2, 6, 1),
    Sketcher.Constraint("Tangent", 6, 2, 7, 1),
    Sketcher.Constraint("Tangent", 7, 2, 0, 1),
    Sketcher.Constraint("Horizontal", 1),
    Sketcher.Constraint("Vertical", 3),
    Sketcher.Constraint("Horizontal", 5),
    Sketcher.Constraint("Vertical", 7),
    Sketcher.Constraint("Vertical", 8),
    Sketcher.Constraint("Horizontal", 9),
    Sketcher.Constraint("Vertical", 10),
    Sketcher.Constraint("Horizontal", 11),
    Sketcher.Constraint("Coincident", 9, 2, -1, 1),
    Sketcher.Constraint("Equal", 0, 2),
    Sketcher.Constraint("Equal", 2, 4),
    Sketcher.Constraint("Equal", 4, 6),
    Sketcher.Constraint("Radius", 0, Q("1 mm")),
    Sketcher.Constraint("DistanceX", 1, 1, 1, 2, Q("38 mm")),
    Sketcher.Constraint("DistanceX", 9, 2, 9, 1, Q("36 mm")),
    Sketcher.Constraint("DistanceY", 3, 1, 3, 2, Q("59 mm")),
    Sketcher.Constraint("DistanceY", 8, 2, 8, 1, Q("57 mm")),
    Sketcher.Constraint("DistanceX", 0, 3, -1, 1, Q("1 mm")),
    Sketcher.Constraint("DistanceY", 0, 3, -1, 1, Q("1 mm")),
])
sketch11.setExpression("Constraints[24]", "Params.sketch11_radius")
sketch11.setExpression("Constraints[25]", "Params.sketch11_width")
sketch11.setExpression("Constraints[26]", "Params.sketch11_width2")
sketch11.setExpression("Constraints[27]", "Params.sketch11_height")
sketch11.setExpression("Constraints[28]", "Params.sketch11_height2")
pad10 = body.newObject("PartDesign::Pad", "Pad009")
pad10.Profile = sketch11
pad10.setExpression("Length", "Params.pad10_length")

sketch12 = body.newObject("Sketcher::SketchObject", "Sketch011")
sketch12.AttachmentSupport = (doc.getObject("XZ_Plane"), [""])
sketch12.MapMode = "FlatFace"
add_polygon(sketch12, [(12.56, -4.7), (12.56, 0), (22.56, 0), (22.56, -4.7)])
sketch12.addConstraint([
    Sketcher.Constraint("Vertical", 0),
    Sketcher.Constraint("Horizontal", 1),
    Sketcher.Constraint("Vertical", 2),
    Sketcher.Constraint("Horizontal", 3),
    Sketcher.Constraint("PointOnObject", 0, 2, -1),
    Sketcher.Constraint("DistanceX", 1, 1, 1, 2, Q("10 mm")),
    Sketcher.Constraint("DistanceY", 0, 1, 0, 2, Q("4.7 mm")),
    Sketcher.Constraint("DistanceX", -1, 1, 0, 2, Q("12.56 mm")),
])
sketch12.setExpression("Constraints[9]", "Params.sketch12_width")
sketch12.setExpression("Constraints[10]", "Params.sketch12_height")
pocket2 = body.newObject("PartDesign::Pocket", "Pocket001")
pocket2.Profile = sketch12
pocket2.setExpression("Length", "Params.pocket2_length")
pocket2.Reversed = True

sketch13 = body.newObject("Sketcher::SketchObject", "Sketch012")
sketch13.AttachmentSupport = (doc.getObject("XY_Plane"), [""])
sketch13.MapMode = "FlatFace"
add_polygon(sketch13, [(0, 15), (0, 0), (36, 0), (36, 57), (0, 57), (0, 51), (5, 51), (5, 15)])
sketch13.addGeometry(Part.Circle(App.Vector(4.56, 6, 0), App.Vector(0, 0, 1), 1), False)
sketch13.addGeometry(Part.Circle(App.Vector(4, 10, 0), App.Vector(0, 0, 1), 1), False)
add_polygon(sketch13, [(7.25, 16), (5.75, 16), (5.75, 25), (7.25, 25)])
sketch13.addGeometry(Part.Circle(App.Vector(30.56, 6, 0), App.Vector(0, 0, 1), 1), False)
sketch13.addGeometry(Part.Circle(App.Vector(31, 10, 0), App.Vector(0, 0, 1), 1), False)
add_polygon(sketch13, [(30.25, 53.5), (30.25, 16), (28.75, 16), (28.75, 52), (7.25, 52), (7.25, 46), (5.75, 46), (5.75, 53.5)])
sketch13.addConstraint([
    Sketcher.Constraint("Vertical", 0),
    Sketcher.Constraint("Horizontal", 1),
    Sketcher.Constraint("Vertical", 2),
    Sketcher.Constraint("Horizontal", 3),
    Sketcher.Constraint("Vertical", 4),
    Sketcher.Constraint("Horizontal", 5),
    Sketcher.Constraint("Vertical", 6),
    Sketcher.Constraint("Horizontal", 7),
    Sketcher.Constraint("Horizontal", 10),
    Sketcher.Constraint("Vertical", 11),
    Sketcher.Constraint("Horizontal", 12),
    Sketcher.Constraint("Vertical", 13),
    Sketcher.Constraint("Vertical", 16),
    Sketcher.Constraint("Horizontal", 17),
    Sketcher.Constraint("Vertical", 18),
    Sketcher.Constraint("Horizontal", 19),
    Sketcher.Constraint("Vertical", 20),
    Sketcher.Constraint("Horizontal", 21),
    Sketcher.Constraint("Vertical", 22),
    Sketcher.Constraint("Horizontal", 23),
    Sketcher.Constraint("Coincident", 0, 2, -1, 1),
    Sketcher.Constraint("Equal", 8, 9),
    Sketcher.Constraint("Equal", 9, 14),
    Sketcher.Constraint("Equal", 14, 15),
    Sketcher.Constraint("PointOnObject", 3, 2, -2),
    Sketcher.Constraint("Horizontal", 8, 3, 14, 3),
    Sketcher.Constraint("Horizontal", 9, 3, 15, 3),
    Sketcher.Constraint("Horizontal", 13, 2, 16, 2),
    Sketcher.Constraint("Vertical", 13, 2, 19, 2),
    Sketcher.Constraint("Vertical", 11, 2, 21, 2),
    Sketcher.Constraint("Equal", 12, 17),
    Sketcher.Constraint("Equal", 3, 6),
    Sketcher.Constraint("Equal", 6, 18),
    Sketcher.Constraint("Equal", 4, 20),
    Sketcher.Constraint("Diameter", 8, Q("2 mm")),
    Sketcher.Constraint("DistanceX", 1, 1, 1, 2, Q("36 mm")),
    Sketcher.Constraint("DistanceX", 5, 1, 5, 2, Q("5 mm")),
    Sketcher.Constraint("DistanceY", 0, 2, 0, 1, Q("15 mm")),
    Sketcher.Constraint("DistanceY", 2, 1, 2, 2, Q("57 mm")),
    Sketcher.Constraint("DistanceY", 11, 1, 11, 2, Q("9 mm")),
    Sketcher.Constraint("DistanceX", 10, 2, 10, 1, Q("1.5 mm")),
    Sketcher.Constraint("DistanceX", 19, 2, 19, 1, Q("21.5 mm")),
    Sketcher.Constraint("DistanceY", 16, 2, 16, 1, Q("37.5 mm")),
    Sketcher.Constraint("DistanceY", -1, 1, 8, 3, Q("6 mm")),
    Sketcher.Constraint("DistanceX", -1, 1, 9, 3, Q("4 mm")),
    Sketcher.Constraint("DistanceY", -1, 1, 9, 3, Q("10 mm")),
    Sketcher.Constraint("DistanceX", -1, 1, 15, 3, Q("31 mm")),
    Sketcher.Constraint("DistanceY", -1, 1, 10, 2, Q("16 mm")),
    Sketcher.Constraint("DistanceX", 8, 3, 14, 3, Q("26 mm")),
    Sketcher.Constraint("DistanceX", -1, 1, 8, 3, Q("4.56 mm")),
    Sketcher.Constraint("DistanceX", -1, 1, 10, 2, Q("5.75 mm")),
])
sketch13.setExpression("Constraints[54]", "Params.sketch13_diameter")
sketch13.setExpression("Constraints[55]", "Params.sketch13_width")
sketch13.setExpression("Constraints[56]", "Params.sketch13_width2")
sketch13.setExpression("Constraints[57]", "Params.sketch13_height")
sketch13.setExpression("Constraints[58]", "Params.sketch13_height2")
pad11 = body.newObject("PartDesign::Pad", "Pad010")
pad11.Profile = sketch13
pad11.setExpression("Length", "Params.pad11_length")
body9 = doc.addObject("PartDesign::Body", "Body008")

sketch14 = body9.newObject("Sketcher::SketchObject", "Sketch013")
sketch14.AttachmentSupport = (doc.getObject("XY_Plane008"), [""])
sketch14.MapMode = "FlatFace"
add_polygon(sketch14, [(5.75, 46), (7.25, 46), (7.25, 52), (28.75, 52), (28.75, 16), (30.25, 16), (30.25, 53.5), (5.75, 53.5)])
sketch14.addConstraint([
    Sketcher.Constraint("Horizontal", 0),
    Sketcher.Constraint("Vertical", 1),
    Sketcher.Constraint("Horizontal", 2),
    Sketcher.Constraint("Vertical", 3),
    Sketcher.Constraint("Horizontal", 4),
    Sketcher.Constraint("Vertical", 5),
    Sketcher.Constraint("Horizontal", 6),
    Sketcher.Constraint("Vertical", 7),
    Sketcher.Constraint("Equal", 0, 4),
    Sketcher.Constraint("DistanceY", 1, 1, 1, 2, Q("6 mm")),
    Sketcher.Constraint("DistanceY", 3, 2, 3, 1, Q("36 mm")),
    Sketcher.Constraint("DistanceX", 0, 1, 0, 2, Q("1.5 mm")),
    Sketcher.Constraint("DistanceX", 2, 1, 2, 2, Q("21.5 mm")),
    Sketcher.Constraint("DistanceY", 5, 1, 5, 2, Q("37.5 mm")),
    Sketcher.Constraint("DistanceY", -1, 1, 0, 2, Q("46 mm")),
    Sketcher.Constraint("DistanceX", -1, 1, 0, 2, Q("7.25 mm")),
])
sketch14.setExpression("Constraints[17]", "Params.sketch14_height")
sketch14.setExpression("Constraints[18]", "Params.sketch14_height2")
sketch14.setExpression("Constraints[19]", "Params.sketch14_width")
sketch14.setExpression("Constraints[20]", "Params.sketch14_width2")
sketch14.setExpression("Constraints[21]", "Params.sketch14_height3")
pad12 = body9.newObject("PartDesign::Pad", "Pad011")
pad12.Profile = sketch14
pad12.setExpression("Length", "Params.pad12_length")
pad12.Reversed = True
body10 = doc.addObject("PartDesign::Body", "Body009")

sketch15 = body10.newObject("Sketcher::SketchObject", "Sketch014")
sketch15.AttachmentSupport = (doc.getObject("XY_Plane009"), [""])
sketch15.MapMode = "FlatFace"
add_polygon(sketch15, [(5.75, 25), (5.75, 16), (7.25, 16), (7.25, 25)])
sketch15.addConstraint([
    Sketcher.Constraint("Vertical", 0),
    Sketcher.Constraint("Horizontal", 1),
    Sketcher.Constraint("Vertical", 2),
    Sketcher.Constraint("Horizontal", 3),
    Sketcher.Constraint("DistanceY", 0, 2, 0, 1, Q("9 mm")),
    Sketcher.Constraint("DistanceX", 1, 1, 1, 2, Q("1.5 mm")),
    Sketcher.Constraint("DistanceY", -1, 1, 0, 2, Q("16 mm")),
    Sketcher.Constraint("DistanceX", -1, 1, 0, 2, Q("5.75 mm")),
])
sketch15.setExpression("Constraints[8]", "Params.sketch15_height")
sketch15.setExpression("Constraints[9]", "Params.sketch15_width")
pad13 = body10.newObject("PartDesign::Pad", "Pad012")
pad13.Profile = sketch15
pad13.setExpression("Length", "Params.pad13_length")
pad13.Reversed = True
body.AllowCompound = True
doc.recompute()

boolean8 = body.newObject("PartDesign::Boolean", "Boolean007")
boolean8.Type = "Fuse"
boolean8.addObjects([body9])
doc.recompute()

boolean9 = body.newObject("PartDesign::Boolean", "Boolean008")
boolean9.Type = "Fuse"
boolean9.addObjects([body10])

sketch16 = body.newObject("Sketcher::SketchObject", "Sketch015")
sketch16.AttachmentSupport = (doc.getObject("XY_Plane"), [""])
sketch16.MapMode = "FlatFace"
add_polygon(sketch16, [(28.75, 16), (30.25, 16), (30.25, 53.5), (5.75, 53.5), (5.75, 46), (7.25, 46), (7.25, 52), (28.75, 52)])
add_polygon(sketch16, [(5.75, 25), (5.75, 16), (7.25, 16), (7.25, 25)])
sketch16.addConstraint([
    Sketcher.Constraint("Horizontal", 0),
    Sketcher.Constraint("Vertical", 1),
    Sketcher.Constraint("Horizontal", 2),
    Sketcher.Constraint("Vertical", 3),
    Sketcher.Constraint("Horizontal", 4),
    Sketcher.Constraint("Vertical", 5),
    Sketcher.Constraint("Horizontal", 6),
    Sketcher.Constraint("Vertical", 7),
    Sketcher.Constraint("Vertical", 8),
    Sketcher.Constraint("Horizontal", 9),
    Sketcher.Constraint("Vertical", 10),
    Sketcher.Constraint("Horizontal", 11),
    Sketcher.Constraint("Horizontal", 7, 2, 8, 2),
    Sketcher.Constraint("Vertical", 3, 2, 8, 2),
    Sketcher.Constraint("Vertical", 5, 2, 9, 2),
    Sketcher.Constraint("Equal", 0, 4),
    Sketcher.Constraint("DistanceY", 5, 1, 5, 2, Q("6 mm")),
    Sketcher.Constraint("DistanceY", 7, 2, 7, 1, Q("36 mm")),
    Sketcher.Constraint("DistanceY", 8, 2, 8, 1, Q("9 mm")),
    Sketcher.Constraint("DistanceX", 0, 1, 0, 2, Q("1.5 mm")),
    Sketcher.Constraint("DistanceX", 2, 2, 2, 1, Q("24.5 mm")),
    Sketcher.Constraint("DistanceY", 1, 1, 1, 2, Q("37.5 mm")),
    Sketcher.Constraint("DistanceY", -1, 1, 0, 2, Q("16 mm")),
    Sketcher.Constraint("DistanceX", -1, 1, 0, 2, Q("30.25 mm")),
])
sketch16.setExpression("Constraints[28]", "Params.sketch16_height")
sketch16.setExpression("Constraints[29]", "Params.sketch16_height2")
sketch16.setExpression("Constraints[30]", "Params.sketch16_height3")
sketch16.setExpression("Constraints[31]", "Params.sketch16_width")
sketch16.setExpression("Constraints[32]", "Params.sketch16_width2")
pad14 = body.newObject("PartDesign::Pad", "Pad013")
pad14.Profile = sketch16
pad14.setExpression("Length", "Params.pad14_length")

sketch17 = body.newObject("Sketcher::SketchObject", "Sketch016")
sketch17.AttachmentSupport = (doc.getObject("YZ_Plane"), [""])
sketch17.MapMode = "FlatFace"
sketch17.AttachmentOffset = App.Placement(App.Vector(0, 0, 38), App.Rotation())
sketch17.addGeometry(Part.Circle(App.Vector(43, 4.5, 0), App.Vector(0, 0, 1), 1), False)
sketch17.addGeometry(Part.Circle(App.Vector(28, 4.5, 0), App.Vector(0, 0, 1), 1), False)
add_polygon(sketch17, [(41, 7.5), (30, 7.5), (30, 1.5), (41, 1.5)])
sketch17.addConstraint([
    Sketcher.Constraint("Horizontal", 2),
    Sketcher.Constraint("Vertical", 3),
    Sketcher.Constraint("Horizontal", 4),
    Sketcher.Constraint("Vertical", 5),
    Sketcher.Constraint("Equal", 0, 1),
    Sketcher.Constraint("Horizontal", 0, 3, 1, 3),
    Sketcher.Constraint("Diameter", 0, Q("2 mm")),
    Sketcher.Constraint("DistanceX", 2, 2, 2, 1, Q("11 mm")),
    Sketcher.Constraint("DistanceY", 3, 2, 3, 1, Q("6 mm")),
    Sketcher.Constraint("DistanceX", -1, 1, 0, 3, Q("43 mm")),
    Sketcher.Constraint("DistanceX", -1, 1, 1, 3, Q("28 mm")),
    Sketcher.Constraint("DistanceX", -1, 1, 2, 2, Q("30 mm")),
    Sketcher.Constraint("DistanceY", 1, 3, 2, 2, Q("3 mm")),
    Sketcher.Constraint("DistanceY", -1, 1, 0, 3, Q("4.5 mm")),
])
sketch17.setExpression("Constraints[10]", "Params.sketch17_diameter")
sketch17.setExpression("Constraints[11]", "Params.sketch17_width")
sketch17.setExpression("Constraints[12]", "Params.sketch17_height")
pocket3 = body.newObject("PartDesign::Pocket", "Pocket002")
pocket3.Profile = sketch17
pocket3.setExpression("Length", "Params.pocket3_length")

doc.recompute()
